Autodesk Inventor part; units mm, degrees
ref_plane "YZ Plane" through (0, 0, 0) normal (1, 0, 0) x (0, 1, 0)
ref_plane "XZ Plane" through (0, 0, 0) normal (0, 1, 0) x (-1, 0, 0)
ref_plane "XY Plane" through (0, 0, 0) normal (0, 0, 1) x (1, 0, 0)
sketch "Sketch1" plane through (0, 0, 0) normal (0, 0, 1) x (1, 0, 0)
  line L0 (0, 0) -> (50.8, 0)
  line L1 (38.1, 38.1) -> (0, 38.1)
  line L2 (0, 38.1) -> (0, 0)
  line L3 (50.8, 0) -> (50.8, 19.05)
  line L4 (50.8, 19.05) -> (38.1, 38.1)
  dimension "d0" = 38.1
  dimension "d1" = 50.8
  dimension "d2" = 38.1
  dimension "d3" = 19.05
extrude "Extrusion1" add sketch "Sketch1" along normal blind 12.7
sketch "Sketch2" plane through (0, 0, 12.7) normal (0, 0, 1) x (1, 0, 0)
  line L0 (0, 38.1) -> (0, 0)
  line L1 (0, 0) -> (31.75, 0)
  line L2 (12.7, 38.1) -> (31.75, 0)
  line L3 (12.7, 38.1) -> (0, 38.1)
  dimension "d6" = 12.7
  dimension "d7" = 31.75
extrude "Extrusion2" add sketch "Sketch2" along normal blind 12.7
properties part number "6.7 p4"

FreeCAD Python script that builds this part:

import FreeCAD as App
import Part
import Sketcher
Q = App.Units.Quantity


def add_polygon(sketch, points):
    """Adds a closed chain of lines whose ends are joined by coincident constraints."""
    first, n = sketch.GeometryCount, len(points)
    for a, b in zip(points, points[1:] + points[:1]):
        sketch.addGeometry(Part.LineSegment(App.Vector(*a, 0), App.Vector(*b, 0)), False)
    for i in range(n):
        sketch.addConstraint(Sketcher.Constraint("Coincident", first + i, 2, first + (i + 1) % n, 1))

doc = App.newDocument("Part")
body = doc.addObject("PartDesign::Body", "Body")

# Sketch on XY plane
sketch1 = body.newObject("Sketcher::SketchObject", "Sketch")
sketch1.AttachmentSupport = (doc.getObject("XY_Plane"), [""])
sketch1.MapMode = "FlatFace"
add_polygon(sketch1, [(0, 38.1), (0, 0), (50.8, 0), (50.8, 19.05), (38.1, 38.1)])  # lines 0-4
sketch1.addConstraint([
    Sketcher.Constraint("Vertical", 0),
    Sketcher.Constraint("Horizontal", 1),
    Sketcher.Constraint("Vertical", 2),
    Sketcher.Constraint("Horizontal", 4),
    Sketcher.Constraint("Coincident", 0, 2, -1, 1),
    Sketcher.Constraint("Equal", 4, 0),
    Sketcher.Constraint("DistanceX", 1, 1, 1, 2, Q("2 in")),
    Sketcher.Constraint("DistanceX", 4, 2, 4, 1, Q("1.5 in")),
    Sketcher.Constraint("DistanceY", 2, 1, 2, 2, Q("0.75 in")),
])
pad1 = body.newObject("PartDesign::Pad", "Pad")
pad1.Profile = sketch1
pad1.Length = Q("0.5 in")

# Sketch on XY plane
sketch2 = body.newObject("Sketcher::SketchObject", "Sketch001")
sketch2.AttachmentSupport = (doc.getObject("XY_Plane"), [""])
sketch2.MapMode = "FlatFace"
sketch2.AttachmentOffset = App.Placement(App.Vector(0, 0, 0.5 * 25.4), App.Rotation())
add_polygon(sketch2, [(12.7, 38.1), (0, 38.1), (0, 0), (31.75, 0)])  # lines 0-3
sketch2.addConstraint([
    Sketcher.Constraint("Horizontal", 0),
    Sketcher.Constraint("Vertical", 1),
    Sketcher.Constraint("Horizontal", 2),
    Sketcher.Constraint("Coincident", 1, 2, -1, 1),
    Sketcher.Constraint("DistanceX", 0, 2, 0, 1, Q("0.5 in")),
    Sketcher.Constraint("DistanceX", 2, 1, 2, 2, Q("1.25 in")),
    Sketcher.Constraint("DistanceY", 1, 2, 1, 1, Q("1.5 in")),
])
pad2 = body.newObject("PartDesign::Pad", "Pad001")
pad2.Profile = sketch2
pad2.Length = Q("0.5 in")

doc.recompute()
